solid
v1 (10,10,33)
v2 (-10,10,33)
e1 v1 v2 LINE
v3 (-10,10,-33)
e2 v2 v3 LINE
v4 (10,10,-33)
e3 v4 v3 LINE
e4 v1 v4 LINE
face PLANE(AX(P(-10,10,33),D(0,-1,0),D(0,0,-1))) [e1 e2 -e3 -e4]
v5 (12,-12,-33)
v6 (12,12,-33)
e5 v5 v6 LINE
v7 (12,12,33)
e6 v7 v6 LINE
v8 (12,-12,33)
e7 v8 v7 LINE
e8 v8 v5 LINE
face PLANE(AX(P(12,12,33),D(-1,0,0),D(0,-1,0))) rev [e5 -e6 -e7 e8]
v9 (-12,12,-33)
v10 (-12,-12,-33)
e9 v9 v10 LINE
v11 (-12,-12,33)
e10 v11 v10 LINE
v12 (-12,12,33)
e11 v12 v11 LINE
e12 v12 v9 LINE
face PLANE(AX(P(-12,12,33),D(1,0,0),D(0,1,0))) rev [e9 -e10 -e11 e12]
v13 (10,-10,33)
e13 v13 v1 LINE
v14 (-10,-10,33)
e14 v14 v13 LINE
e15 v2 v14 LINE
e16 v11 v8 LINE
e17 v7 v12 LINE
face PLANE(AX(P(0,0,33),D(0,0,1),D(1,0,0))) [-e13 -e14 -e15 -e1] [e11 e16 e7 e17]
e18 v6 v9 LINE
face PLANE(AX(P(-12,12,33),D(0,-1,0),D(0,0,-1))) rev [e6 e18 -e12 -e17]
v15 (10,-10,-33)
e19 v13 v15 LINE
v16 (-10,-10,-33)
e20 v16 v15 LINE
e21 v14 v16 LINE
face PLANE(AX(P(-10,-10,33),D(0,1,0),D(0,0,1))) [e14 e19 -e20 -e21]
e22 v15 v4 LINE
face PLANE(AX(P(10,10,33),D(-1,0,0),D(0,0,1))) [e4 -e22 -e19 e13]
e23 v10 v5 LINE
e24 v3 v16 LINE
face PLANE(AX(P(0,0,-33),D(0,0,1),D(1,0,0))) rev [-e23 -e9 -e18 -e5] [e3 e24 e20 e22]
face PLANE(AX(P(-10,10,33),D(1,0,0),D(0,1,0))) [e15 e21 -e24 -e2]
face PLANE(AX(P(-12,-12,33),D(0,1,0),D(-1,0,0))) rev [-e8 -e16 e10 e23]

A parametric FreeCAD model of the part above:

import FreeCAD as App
import Part
import Sketcher
from FreeCAD import Vector
Q = App.Units.Quantity


def add_polygon(sketch, points):
    """Adds a closed chain of lines whose ends are joined by coincident constraints."""
    first, n = sketch.GeometryCount, len(points)
    for a, b in zip(points, points[1:] + points[:1]):
        sketch.addGeometry(Part.LineSegment(App.Vector(*a, 0), App.Vector(*b, 0)), False)
    for i in range(n):
        sketch.addConstraint(Sketcher.Constraint("Coincident", first + i, 2, first + (i + 1) % n, 1))

doc = App.newDocument("Part")
body = doc.addObject("PartDesign::Body", "Body")

# Sketch on XY plane
sketch1 = body.newObject("Sketcher::SketchObject", "Sketch")
sketch1.AttachmentSupport = (doc.getObject("XY_Plane"), [""])
sketch1.MapMode = "FlatFace"
add_polygon(sketch1, [(-12, 12), (-12, -12), (12, -12), (12, 12)])  # lines 0-3
add_polygon(sketch1, [(10, -10), (-10, -10), (-10, 10), (10, 10)])  # lines 4-7
sketch1.addConstraint(Sketcher.Constraint("Vertical", 0))
sketch1.addConstraint(Sketcher.Constraint("Horizontal", 1))
sketch1.addConstraint(Sketcher.Constraint("Vertical", 2))
sketch1.addConstraint(Sketcher.Constraint("Horizontal", 3))
sketch1.addConstraint(Sketcher.Constraint("Horizontal", 4))
sketch1.addConstraint(Sketcher.Constraint("Vertical", 5))
sketch1.addConstraint(Sketcher.Constraint("Horizontal", 6))
sketch1.addConstraint(Sketcher.Constraint("Vertical", 7))
sketch1.addConstraint(Sketcher.Constraint("Symmetric", 0, 2, 2, 2, -1, 1))
sketch1.addConstraint(Sketcher.Constraint("Symmetric", 4, 2, 6, 2, -1, 1))
sketch1.addConstraint(Sketcher.Constraint("Equal", 3, 0))
sketch1.addConstraint(Sketcher.Constraint("Equal", 6, 5))
sketch1.addConstraint(Sketcher.Constraint("DistanceX", 1, 1, 1, 2, Q("24 mm")))
sketch1.addConstraint(Sketcher.Constraint("DistanceX", 4, 2, 4, 1, Q("20 mm")))
pad1 = body.newObject("PartDesign::Pad", "Pad")
pad1.Profile = sketch1
pad1.Length = 66
pad1.Midplane = True

doc.recompute()
